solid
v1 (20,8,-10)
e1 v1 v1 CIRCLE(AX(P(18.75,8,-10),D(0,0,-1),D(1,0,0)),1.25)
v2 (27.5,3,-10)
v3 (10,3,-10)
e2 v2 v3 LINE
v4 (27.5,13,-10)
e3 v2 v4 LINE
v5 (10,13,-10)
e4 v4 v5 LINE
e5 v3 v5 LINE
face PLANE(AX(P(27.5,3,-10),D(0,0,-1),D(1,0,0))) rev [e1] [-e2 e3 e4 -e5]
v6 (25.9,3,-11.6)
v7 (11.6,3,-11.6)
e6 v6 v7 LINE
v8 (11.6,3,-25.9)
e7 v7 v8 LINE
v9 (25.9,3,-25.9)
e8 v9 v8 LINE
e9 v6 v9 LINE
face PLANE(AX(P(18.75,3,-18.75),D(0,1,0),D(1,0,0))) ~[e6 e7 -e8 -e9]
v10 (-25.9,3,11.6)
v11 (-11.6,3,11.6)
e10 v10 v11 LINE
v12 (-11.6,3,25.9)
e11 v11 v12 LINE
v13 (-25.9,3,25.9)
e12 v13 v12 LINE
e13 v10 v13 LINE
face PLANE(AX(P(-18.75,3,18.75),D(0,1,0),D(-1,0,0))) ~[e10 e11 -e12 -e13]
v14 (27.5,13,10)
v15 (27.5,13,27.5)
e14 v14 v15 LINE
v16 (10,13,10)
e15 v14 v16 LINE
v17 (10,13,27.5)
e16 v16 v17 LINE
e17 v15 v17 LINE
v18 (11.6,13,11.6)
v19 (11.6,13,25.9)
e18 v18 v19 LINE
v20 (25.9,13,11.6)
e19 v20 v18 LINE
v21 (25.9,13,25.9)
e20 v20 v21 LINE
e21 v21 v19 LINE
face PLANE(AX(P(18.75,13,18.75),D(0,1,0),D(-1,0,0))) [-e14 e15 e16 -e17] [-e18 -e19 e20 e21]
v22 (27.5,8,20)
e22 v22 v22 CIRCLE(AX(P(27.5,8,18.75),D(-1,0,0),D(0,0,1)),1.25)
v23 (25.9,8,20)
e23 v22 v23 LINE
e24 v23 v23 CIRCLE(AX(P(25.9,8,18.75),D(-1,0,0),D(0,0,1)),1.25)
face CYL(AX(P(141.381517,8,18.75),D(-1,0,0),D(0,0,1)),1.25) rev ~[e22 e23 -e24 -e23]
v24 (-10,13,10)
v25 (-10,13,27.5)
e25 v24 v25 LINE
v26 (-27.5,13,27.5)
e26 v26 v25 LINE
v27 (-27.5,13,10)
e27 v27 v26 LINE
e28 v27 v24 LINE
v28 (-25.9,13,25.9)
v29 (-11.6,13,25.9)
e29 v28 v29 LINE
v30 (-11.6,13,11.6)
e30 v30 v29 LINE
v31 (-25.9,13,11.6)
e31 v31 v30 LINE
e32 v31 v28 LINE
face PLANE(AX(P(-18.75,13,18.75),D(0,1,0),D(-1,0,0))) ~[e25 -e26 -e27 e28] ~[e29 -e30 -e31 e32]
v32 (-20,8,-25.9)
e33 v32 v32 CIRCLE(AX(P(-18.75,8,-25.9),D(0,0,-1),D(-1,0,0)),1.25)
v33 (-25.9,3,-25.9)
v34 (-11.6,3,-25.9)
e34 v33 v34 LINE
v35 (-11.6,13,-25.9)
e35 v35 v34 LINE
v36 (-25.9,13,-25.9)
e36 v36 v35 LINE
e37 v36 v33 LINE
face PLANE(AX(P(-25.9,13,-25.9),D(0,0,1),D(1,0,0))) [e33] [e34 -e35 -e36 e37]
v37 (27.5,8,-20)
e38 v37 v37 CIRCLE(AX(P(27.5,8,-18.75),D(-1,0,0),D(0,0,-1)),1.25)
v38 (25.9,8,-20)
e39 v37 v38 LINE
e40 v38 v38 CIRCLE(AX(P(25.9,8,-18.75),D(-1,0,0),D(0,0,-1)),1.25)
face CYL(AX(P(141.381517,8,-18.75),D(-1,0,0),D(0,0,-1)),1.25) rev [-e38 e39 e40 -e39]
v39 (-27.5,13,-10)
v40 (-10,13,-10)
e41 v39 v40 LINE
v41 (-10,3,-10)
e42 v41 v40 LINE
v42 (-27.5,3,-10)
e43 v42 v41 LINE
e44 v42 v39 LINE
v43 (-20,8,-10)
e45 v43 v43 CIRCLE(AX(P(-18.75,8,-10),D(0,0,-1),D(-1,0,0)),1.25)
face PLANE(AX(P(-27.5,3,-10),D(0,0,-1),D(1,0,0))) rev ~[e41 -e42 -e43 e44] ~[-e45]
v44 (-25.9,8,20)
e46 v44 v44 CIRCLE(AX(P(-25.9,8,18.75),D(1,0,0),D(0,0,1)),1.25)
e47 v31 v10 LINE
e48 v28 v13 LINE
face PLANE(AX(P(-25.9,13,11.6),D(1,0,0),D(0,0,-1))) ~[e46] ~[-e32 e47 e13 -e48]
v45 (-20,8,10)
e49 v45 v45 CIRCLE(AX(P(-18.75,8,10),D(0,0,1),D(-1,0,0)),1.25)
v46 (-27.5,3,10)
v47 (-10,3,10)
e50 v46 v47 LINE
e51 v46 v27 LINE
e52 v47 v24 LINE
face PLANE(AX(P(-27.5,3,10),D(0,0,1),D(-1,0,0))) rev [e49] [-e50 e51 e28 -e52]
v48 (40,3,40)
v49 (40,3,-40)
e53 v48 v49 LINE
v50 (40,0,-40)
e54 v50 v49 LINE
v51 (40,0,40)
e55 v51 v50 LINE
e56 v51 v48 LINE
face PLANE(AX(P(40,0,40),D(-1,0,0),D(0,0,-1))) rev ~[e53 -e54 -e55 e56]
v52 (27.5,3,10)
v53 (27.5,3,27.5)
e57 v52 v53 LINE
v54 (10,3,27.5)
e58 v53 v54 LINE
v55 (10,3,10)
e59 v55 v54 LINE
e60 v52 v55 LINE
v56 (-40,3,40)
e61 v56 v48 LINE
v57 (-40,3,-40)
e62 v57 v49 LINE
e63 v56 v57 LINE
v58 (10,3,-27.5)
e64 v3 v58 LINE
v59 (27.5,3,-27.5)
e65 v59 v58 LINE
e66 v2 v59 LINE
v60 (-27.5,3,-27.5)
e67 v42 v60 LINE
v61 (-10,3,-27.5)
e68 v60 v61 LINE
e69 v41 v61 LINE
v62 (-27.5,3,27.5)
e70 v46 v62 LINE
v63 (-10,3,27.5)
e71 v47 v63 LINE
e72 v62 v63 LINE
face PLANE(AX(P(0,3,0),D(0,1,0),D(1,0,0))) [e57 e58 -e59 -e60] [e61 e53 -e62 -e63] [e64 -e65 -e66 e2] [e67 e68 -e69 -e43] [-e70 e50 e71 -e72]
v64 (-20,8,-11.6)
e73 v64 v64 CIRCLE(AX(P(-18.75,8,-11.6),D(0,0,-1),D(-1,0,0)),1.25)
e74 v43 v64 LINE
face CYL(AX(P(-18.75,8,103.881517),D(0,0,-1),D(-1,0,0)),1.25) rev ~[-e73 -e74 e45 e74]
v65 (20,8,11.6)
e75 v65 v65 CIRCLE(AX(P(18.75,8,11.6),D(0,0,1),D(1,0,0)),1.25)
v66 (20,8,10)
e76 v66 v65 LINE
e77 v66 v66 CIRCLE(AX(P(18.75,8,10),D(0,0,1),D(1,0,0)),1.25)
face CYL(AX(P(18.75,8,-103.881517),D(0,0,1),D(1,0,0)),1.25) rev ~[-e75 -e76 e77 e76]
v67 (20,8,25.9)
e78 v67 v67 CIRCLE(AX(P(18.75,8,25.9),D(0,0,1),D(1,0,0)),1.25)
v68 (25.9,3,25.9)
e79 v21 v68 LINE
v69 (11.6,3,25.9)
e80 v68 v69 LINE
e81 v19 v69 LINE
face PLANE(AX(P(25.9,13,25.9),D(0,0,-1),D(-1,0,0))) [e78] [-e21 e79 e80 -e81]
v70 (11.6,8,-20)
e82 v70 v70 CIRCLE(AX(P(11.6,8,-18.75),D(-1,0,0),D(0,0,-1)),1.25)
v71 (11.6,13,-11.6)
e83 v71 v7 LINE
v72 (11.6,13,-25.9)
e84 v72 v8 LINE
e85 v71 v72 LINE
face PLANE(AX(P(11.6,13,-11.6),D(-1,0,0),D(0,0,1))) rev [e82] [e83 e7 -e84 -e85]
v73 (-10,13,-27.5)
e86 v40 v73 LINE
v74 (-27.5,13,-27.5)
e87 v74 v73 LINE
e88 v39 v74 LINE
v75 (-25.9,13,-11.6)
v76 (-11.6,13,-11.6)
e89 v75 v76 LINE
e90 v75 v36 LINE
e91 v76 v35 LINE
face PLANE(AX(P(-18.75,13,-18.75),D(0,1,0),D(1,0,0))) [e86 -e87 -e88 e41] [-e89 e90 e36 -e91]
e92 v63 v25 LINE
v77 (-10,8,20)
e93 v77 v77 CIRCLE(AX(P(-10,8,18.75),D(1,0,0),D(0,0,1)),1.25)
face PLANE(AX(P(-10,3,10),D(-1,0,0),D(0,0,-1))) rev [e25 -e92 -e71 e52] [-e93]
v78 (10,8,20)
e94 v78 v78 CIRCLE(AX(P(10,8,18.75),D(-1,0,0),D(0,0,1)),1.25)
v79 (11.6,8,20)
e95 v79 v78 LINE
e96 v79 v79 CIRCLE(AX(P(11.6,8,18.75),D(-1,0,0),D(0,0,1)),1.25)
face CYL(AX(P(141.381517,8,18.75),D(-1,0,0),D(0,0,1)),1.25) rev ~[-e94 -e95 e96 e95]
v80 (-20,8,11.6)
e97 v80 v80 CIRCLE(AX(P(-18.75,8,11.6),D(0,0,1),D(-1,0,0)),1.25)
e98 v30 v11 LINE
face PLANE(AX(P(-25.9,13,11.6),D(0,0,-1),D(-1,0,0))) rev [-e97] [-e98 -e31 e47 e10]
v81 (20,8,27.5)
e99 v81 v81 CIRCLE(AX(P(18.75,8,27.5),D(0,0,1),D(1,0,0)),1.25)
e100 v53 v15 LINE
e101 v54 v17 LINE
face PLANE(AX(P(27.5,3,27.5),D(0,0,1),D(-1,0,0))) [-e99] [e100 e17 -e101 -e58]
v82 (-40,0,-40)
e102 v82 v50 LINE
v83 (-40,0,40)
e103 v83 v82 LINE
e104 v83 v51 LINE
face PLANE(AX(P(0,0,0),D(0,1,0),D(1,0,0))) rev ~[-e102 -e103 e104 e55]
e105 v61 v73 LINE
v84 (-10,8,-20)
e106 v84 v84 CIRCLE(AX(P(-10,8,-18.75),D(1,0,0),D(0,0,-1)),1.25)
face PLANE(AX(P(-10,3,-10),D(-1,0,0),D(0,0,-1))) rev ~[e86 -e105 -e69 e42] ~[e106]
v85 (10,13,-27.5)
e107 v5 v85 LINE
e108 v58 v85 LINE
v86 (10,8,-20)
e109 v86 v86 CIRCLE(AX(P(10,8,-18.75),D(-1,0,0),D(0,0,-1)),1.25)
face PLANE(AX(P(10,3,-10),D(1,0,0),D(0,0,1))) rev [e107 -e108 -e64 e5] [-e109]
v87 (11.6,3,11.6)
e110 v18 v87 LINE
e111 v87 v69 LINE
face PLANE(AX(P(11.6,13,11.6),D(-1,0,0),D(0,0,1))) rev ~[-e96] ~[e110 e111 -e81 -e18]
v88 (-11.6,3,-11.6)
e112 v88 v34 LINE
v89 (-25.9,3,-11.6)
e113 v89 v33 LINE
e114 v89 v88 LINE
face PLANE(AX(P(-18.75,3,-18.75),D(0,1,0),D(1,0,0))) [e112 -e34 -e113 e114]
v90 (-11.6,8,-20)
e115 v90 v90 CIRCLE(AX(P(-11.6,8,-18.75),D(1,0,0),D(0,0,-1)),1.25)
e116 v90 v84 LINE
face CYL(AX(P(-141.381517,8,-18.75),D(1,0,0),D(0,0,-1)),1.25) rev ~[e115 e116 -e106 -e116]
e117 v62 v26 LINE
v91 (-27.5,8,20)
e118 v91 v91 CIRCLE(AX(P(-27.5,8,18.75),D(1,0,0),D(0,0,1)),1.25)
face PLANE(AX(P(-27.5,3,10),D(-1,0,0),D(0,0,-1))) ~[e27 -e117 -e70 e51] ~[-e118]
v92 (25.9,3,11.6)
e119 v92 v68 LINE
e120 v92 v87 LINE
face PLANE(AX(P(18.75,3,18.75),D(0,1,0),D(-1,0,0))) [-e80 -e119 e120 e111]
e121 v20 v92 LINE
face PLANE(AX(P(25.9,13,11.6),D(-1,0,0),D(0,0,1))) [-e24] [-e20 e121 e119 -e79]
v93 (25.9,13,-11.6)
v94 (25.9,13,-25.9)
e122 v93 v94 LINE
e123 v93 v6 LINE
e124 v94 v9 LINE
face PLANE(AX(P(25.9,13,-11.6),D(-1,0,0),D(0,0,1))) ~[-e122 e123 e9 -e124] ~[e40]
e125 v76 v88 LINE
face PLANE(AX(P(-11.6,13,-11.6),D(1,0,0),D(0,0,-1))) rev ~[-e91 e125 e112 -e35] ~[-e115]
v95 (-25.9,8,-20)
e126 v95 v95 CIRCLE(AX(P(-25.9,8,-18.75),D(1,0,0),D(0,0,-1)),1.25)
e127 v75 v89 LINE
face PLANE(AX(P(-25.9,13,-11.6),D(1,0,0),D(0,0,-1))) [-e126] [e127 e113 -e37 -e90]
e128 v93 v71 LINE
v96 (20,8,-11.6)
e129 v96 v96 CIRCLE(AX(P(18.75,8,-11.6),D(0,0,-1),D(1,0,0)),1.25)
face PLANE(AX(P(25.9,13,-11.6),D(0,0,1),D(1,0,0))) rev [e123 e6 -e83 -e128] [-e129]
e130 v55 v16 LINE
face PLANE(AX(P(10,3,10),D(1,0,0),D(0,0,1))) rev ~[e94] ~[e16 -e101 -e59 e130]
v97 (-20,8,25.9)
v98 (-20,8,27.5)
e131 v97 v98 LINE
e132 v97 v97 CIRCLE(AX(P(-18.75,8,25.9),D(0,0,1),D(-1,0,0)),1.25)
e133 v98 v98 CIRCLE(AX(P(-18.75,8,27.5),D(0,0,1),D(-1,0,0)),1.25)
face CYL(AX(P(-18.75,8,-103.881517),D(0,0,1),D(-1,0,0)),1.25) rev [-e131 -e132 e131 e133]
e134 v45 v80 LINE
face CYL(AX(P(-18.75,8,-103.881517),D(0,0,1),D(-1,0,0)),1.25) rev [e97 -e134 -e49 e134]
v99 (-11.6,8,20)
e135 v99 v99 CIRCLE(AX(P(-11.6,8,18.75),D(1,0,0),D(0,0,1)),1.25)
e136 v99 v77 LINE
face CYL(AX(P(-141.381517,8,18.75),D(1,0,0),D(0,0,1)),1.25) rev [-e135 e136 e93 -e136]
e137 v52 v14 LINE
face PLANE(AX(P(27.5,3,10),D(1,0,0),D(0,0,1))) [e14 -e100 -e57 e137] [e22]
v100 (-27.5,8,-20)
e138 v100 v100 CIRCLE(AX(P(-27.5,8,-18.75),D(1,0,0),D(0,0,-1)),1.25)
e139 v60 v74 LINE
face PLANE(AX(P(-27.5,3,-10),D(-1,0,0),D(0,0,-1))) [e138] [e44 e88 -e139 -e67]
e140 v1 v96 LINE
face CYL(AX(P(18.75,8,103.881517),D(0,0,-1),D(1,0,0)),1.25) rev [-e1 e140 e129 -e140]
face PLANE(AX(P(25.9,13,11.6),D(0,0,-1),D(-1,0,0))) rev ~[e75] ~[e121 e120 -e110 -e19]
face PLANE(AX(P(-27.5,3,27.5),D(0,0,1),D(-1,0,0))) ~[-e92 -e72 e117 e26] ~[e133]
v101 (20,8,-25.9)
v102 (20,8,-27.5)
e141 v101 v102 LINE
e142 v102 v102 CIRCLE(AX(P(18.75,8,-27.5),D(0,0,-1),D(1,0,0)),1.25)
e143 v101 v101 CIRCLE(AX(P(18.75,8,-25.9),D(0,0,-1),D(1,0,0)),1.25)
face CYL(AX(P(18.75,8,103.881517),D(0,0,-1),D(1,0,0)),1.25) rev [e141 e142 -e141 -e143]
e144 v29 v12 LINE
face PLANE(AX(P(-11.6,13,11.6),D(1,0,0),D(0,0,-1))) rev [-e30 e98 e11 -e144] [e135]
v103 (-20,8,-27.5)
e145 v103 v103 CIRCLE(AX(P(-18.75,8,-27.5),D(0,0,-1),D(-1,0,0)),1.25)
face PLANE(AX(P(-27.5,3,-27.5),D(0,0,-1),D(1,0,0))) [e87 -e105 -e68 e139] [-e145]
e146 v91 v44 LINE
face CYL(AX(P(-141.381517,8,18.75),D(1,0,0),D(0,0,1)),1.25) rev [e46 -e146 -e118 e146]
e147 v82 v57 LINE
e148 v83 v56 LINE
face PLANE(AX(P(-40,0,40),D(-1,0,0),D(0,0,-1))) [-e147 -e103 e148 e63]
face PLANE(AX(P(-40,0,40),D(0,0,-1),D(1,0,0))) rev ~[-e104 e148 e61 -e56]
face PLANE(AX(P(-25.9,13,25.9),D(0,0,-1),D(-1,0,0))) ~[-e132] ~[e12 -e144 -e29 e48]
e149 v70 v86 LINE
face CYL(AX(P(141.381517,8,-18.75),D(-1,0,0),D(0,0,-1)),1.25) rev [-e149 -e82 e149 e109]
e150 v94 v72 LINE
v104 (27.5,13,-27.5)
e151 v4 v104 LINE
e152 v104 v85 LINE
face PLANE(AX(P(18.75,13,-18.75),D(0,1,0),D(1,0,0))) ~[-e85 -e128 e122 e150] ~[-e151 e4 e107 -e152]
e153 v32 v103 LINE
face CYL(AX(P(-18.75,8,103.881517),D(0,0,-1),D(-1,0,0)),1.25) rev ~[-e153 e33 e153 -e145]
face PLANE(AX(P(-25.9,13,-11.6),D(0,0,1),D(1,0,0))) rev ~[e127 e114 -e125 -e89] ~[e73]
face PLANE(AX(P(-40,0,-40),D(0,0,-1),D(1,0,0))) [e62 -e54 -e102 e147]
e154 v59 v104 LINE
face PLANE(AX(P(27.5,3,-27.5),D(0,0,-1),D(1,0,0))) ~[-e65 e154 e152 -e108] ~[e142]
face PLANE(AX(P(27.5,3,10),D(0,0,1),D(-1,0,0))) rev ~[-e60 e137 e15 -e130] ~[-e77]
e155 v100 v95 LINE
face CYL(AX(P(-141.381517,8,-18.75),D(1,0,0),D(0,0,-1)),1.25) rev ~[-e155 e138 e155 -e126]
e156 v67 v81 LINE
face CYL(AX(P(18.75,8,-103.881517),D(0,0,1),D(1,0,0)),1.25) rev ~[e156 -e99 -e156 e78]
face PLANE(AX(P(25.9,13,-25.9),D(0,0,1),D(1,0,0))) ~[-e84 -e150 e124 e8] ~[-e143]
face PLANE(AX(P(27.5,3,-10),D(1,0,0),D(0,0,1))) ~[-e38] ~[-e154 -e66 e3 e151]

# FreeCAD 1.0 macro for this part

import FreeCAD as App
import Part
import Sketcher
from FreeCAD import Vector

doc = App.newDocument("Part")
body = doc.addObject("PartDesign::Body", "Body")

# Sketch on XZ plane
sketch1 = body.newObject("Sketcher::SketchObject", "Sketch")
sketch1.AttachmentSupport = (doc.getObject("XZ_Plane"), [""])
sketch1.MapMode = "FlatFace"
sketch1.addGeometry([
    Part.LineSegment(Vector(-40, -40, 0), Vector(-40, 40, 0)),
    Part.LineSegment(Vector(-40, 40, 0), Vector(40, 40, 0)),
    Part.LineSegment(Vector(40, 40, 0), Vector(40, -40, 0)),
    Part.LineSegment(Vector(40, -40, 0), Vector(-40, -40, 0)),
], False)
sketch1.addConstraint([
    Sketcher.Constraint("Coincident", 0, 2, 1, 1),
    Sketcher.Constraint("Coincident", 1, 2, 2, 1),
    Sketcher.Constraint("Coincident", 2, 2, 3, 1),
    Sketcher.Constraint("Coincident", 3, 2, 0, 1),
    Sketcher.Constraint("Vertical", 0),
    Sketcher.Constraint("Horizontal", 1),
    Sketcher.Constraint("Vertical", 2),
    Sketcher.Constraint("Horizontal", 3),
    Sketcher.Constraint("Symmetric", 0, 2, 2, 2, -1, 1),
    Sketcher.Constraint("Equal", 3, 0),
    Sketcher.Constraint("DistanceX", 1, 1, 1, 2, 80.0),
])
pad1 = body.newObject("PartDesign::Pad", "Pad")
pad1.Profile = sketch1
pad1.Length = 3
pad1.Reversed = True

# Sketch on XZ plane
sketch2 = body.newObject("Sketcher::SketchObject", "Sketch001")
sketch2.AttachmentSupport = (doc.getObject("XZ_Plane"), [""])
sketch2.MapMode = "FlatFace"
sketch2.AttachmentOffset = App.Placement(Vector(0, 0, -3), App.Rotation())
sketch2.addGeometry([
    Part.LineSegment(Vector(-28, -28, 0), Vector(-28, -10, 0)),
    Part.LineSegment(Vector(-28, -10, 0), Vector(-10, -10, 0)),
    Part.LineSegment(Vector(-10, -10, 0), Vector(-10, -28, 0)),
    Part.LineSegment(Vector(-10, -28, 0), Vector(-28, -28, 0)),
], False)
sketch2.addConstraint([
    Sketcher.Constraint("Coincident", 0, 2, 1, 1),
    Sketcher.Constraint("Coincident", 1, 2, 2, 1),
    Sketcher.Constraint("Coincident", 2, 2, 3, 1),
    Sketcher.Constraint("Coincident", 3, 2, 0, 1),
    Sketcher.Constraint("Vertical", 0),
    Sketcher.Constraint("Horizontal", 1),
    Sketcher.Constraint("Vertical", 2),
    Sketcher.Constraint("Horizontal", 3),
    Sketcher.Constraint("Equal", 3, 0),
    Sketcher.Constraint("DistanceX", 1, 1, 1, 2, 17.5),
    Sketcher.Constraint("DistanceY", 0, 2, -1, 1, 10.0),
    Sketcher.Constraint("DistanceX", 1, 2, -1, 1, 10.0),
])
pad2 = body.newObject("PartDesign::Pad", "Pad001")
pad2.Profile = sketch2
pad2.Length = 10
pad2.Reversed = True

# Sketch on XZ plane
sketch3 = body.newObject("Sketcher::SketchObject", "Sketch002")
sketch3.AttachmentSupport = (doc.getObject("XZ_Plane"), [""])
sketch3.MapMode = "FlatFace"
sketch3.AttachmentOffset = App.Placement(Vector(0, 0, -13), App.Rotation())
sketch3.addGeometry([
    Part.LineSegment(Vector(-26, -26, 0), Vector(-26, -12, 0)),
    Part.LineSegment(Vector(-26, -12, 0), Vector(-12, -12, 0)),
    Part.LineSegment(Vector(-12, -12, 0), Vector(-12, -26, 0)),
    Part.LineSegment(Vector(-12, -26, 0), Vector(-26, -26, 0)),
], False)
sketch3.addConstraint([
    Sketcher.Constraint("Coincident", 0, 2, 1, 1),
    Sketcher.Constraint("Coincident", 1, 2, 2, 1),
    Sketcher.Constraint("Coincident", 2, 2, 3, 1),
    Sketcher.Constraint("Coincident", 3, 2, 0, 1),
    Sketcher.Constraint("Vertical", 0),
    Sketcher.Constraint("Horizontal", 1),
    Sketcher.Constraint("Vertical", 2),
    Sketcher.Constraint("Horizontal", 3),
    Sketcher.Constraint("Equal", 3, 0),
    Sketcher.Constraint("DistanceX", 1, 1, 1, 2, 14.3),
    Sketcher.Constraint("DistanceX", 0, 2, -1, 1, 25.9),
    Sketcher.Constraint("DistanceY", 0, 2, -1, 1, 11.6),
])
pocket1 = body.newObject("PartDesign::Pocket", "Pocket")
pocket1.Profile = sketch3
pocket1.Length = 10
pocket1.Reversed = True

# Sketch on XY plane
sketch4 = body.newObject("Sketcher::SketchObject", "Sketch003")
sketch4.AttachmentSupport = (doc.getObject("XY_Plane"), [""])
sketch4.MapMode = "FlatFace"
sketch4.AttachmentOffset = App.Placement(Vector(0, 0, -10), App.Rotation())
sketch4.addGeometry(Part.Circle(Vector(-18.8, 8, 0), Vector(0, 0, 1), 1.2), False)
sketch4.addConstraint([
    Sketcher.Constraint("Diameter", 0, 2.5),
    Sketcher.Constraint("DistanceY", -1, 1, 0, 3, 8.0),
    Sketcher.Constraint("DistanceX", 0, 3, -1, 1, 18.75),
])
doc.recompute()
hole = body.newObject("PartDesign::Hole", "Hole")
hole.Profile = sketch4
hole.ThreadType = "None"
hole.Diameter = 2.5
hole.DepthType = "ThroughAll"

# Sketch on YZ plane
sketch5 = body.newObject("Sketcher::SketchObject", "Sketch004")
sketch5.AttachmentSupport = (doc.getObject("YZ_Plane"), [""])
sketch5.MapMode = "FlatFace"
sketch5.AttachmentOffset = App.Placement(Vector(0, 0, -27.5), App.Rotation())
sketch5.addGeometry(Part.Circle(Vector(8, -18.8, 0), Vector(0, 0, 1), 1.2), False)
sketch5.addConstraint([
    Sketcher.Constraint("Diameter", 0, 2.5),
    Sketcher.Constraint("DistanceX", -1, 1, 0, 3, 8.0),
    Sketcher.Constraint("DistanceY", 0, 3, -1, 1, 18.75),
])
doc.recompute()
hole2 = body.newObject("PartDesign::Hole", "Hole001")
hole2.Profile = sketch5
hole2.ThreadType = "None"
hole2.Diameter = 2.5
hole2.DepthType = "ThroughAll"
hole2.Reversed = True
doc.recompute()

mirrored = body.newObject("PartDesign::Mirrored", "Mirrored")
mirrored.Originals = [pad2, pocket1, hole, hole2]
mirrored.MirrorPlane = (doc.getObject("YZ_Plane"), [""])
body.Tip = mirrored
doc.recompute()

mirrored2 = body.newObject("PartDesign::Mirrored", "Mirrored001")
mirrored2.Originals = [pad2, pocket1, hole, hole2]
mirrored2.MirrorPlane = (doc.getObject("XY_Plane"), [""])
body.Tip = mirrored2

# Sketch on XZ plane
sketch6 = body.newObject("Sketcher::SketchObject", "Sketch005")
sketch6.AttachmentSupport = (doc.getObject("XZ_Plane"), [""])
sketch6.MapMode = "FlatFace"
sketch6.AttachmentOffset = App.Placement(Vector(0, 0, -3), App.Rotation())
sketch6.addGeometry([
    Part.LineSegment(Vector(28, 28, 0), Vector(28, 10, 0)),
    Part.LineSegment(Vector(28, 10, 0), Vector(10, 10, 0)),
    Part.LineSegment(Vector(10, 10, 0), Vector(10, 28, 0)),
    Part.LineSegment(Vector(10, 28, 0), Vector(28, 28, 0)),
], False)
sketch6.addConstraint([
    Sketcher.Constraint("Coincident", 0, 2, 1, 1),
    Sketcher.Constraint("Coincident", 1, 2, 2, 1),
    Sketcher.Constraint("Coincident", 2, 2, 3, 1),
    Sketcher.Constraint("Coincident", 3, 2, 0, 1),
    Sketcher.Constraint("Vertical", 0),
    Sketcher.Constraint("Horizontal", 1),
    Sketcher.Constraint("Vertical", 2),
    Sketcher.Constraint("Horizontal", 3),
    Sketcher.Constraint("Equal", 3, 0),
    Sketcher.Constraint("DistanceX", 1, 2, 1, 1, 17.5),
    Sketcher.Constraint("DistanceY", -1, 1, 0, 2, 10.0),
    Sketcher.Constraint("DistanceX", -1, 1, 1, 2, 10.0),
])
pad3 = body.newObject("PartDesign::Pad", "Pad002")
pad3.Profile = sketch6
pad3.Length = 10
pad3.Reversed = True

# Sketch on XZ plane
sketch7 = body.newObject("Sketcher::SketchObject", "Sketch006")
sketch7.AttachmentSupport = (doc.getObject("XZ_Plane"), [""])
sketch7.MapMode = "FlatFace"
sketch7.AttachmentOffset = App.Placement(Vector(0, 0, -13), App.Rotation())
sketch7.addGeometry([
    Part.LineSegment(Vector(26, 26, 0), Vector(26, 12, 0)),
    Part.LineSegment(Vector(26, 12, 0), Vector(12, 12, 0)),
    Part.LineSegment(Vector(12, 12, 0), Vector(12, 26, 0)),
    Part.LineSegment(Vector(12, 26, 0), Vector(26, 26, 0)),
], False)
sketch7.addConstraint([
    Sketcher.Constraint("Coincident", 0, 2, 1, 1),
    Sketcher.Constraint("Coincident", 1, 2, 2, 1),
    Sketcher.Constraint("Coincident", 2, 2, 3, 1),
    Sketcher.Constraint("Coincident", 3, 2, 0, 1),
    Sketcher.Constraint("Vertical", 0),
    Sketcher.Constraint("Horizontal", 1),
    Sketcher.Constraint("Vertical", 2),
    Sketcher.Constraint("Horizontal", 3),
    Sketcher.Constraint("Equal", 3, 0),
    Sketcher.Constraint("DistanceX", 1, 2, 1, 1, 14.3),
    Sketcher.Constraint("DistanceX", -1, 1, 0, 2, 25.9),
    Sketcher.Constraint("DistanceY", -1, 1, 0, 2, 11.6),
])
pocket2 = body.newObject("PartDesign::Pocket", "Pocket001")
pocket2.Profile = sketch7
pocket2.Length = 10
pocket2.Reversed = True

# Sketch on XY plane
sketch8 = body.newObject("Sketcher::SketchObject", "Sketch007")
sketch8.AttachmentSupport = (doc.getObject("XY_Plane"), [""])
sketch8.MapMode = "FlatFace"
sketch8.AttachmentOffset = App.Placement(Vector(0, 0, 10), App.Rotation())
sketch8.addGeometry(Part.Circle(Vector(18.8, 8, 0), Vector(0, 0, 1), 1.2), False)
sketch8.addConstraint([
    Sketcher.Constraint("Diameter", 0, 2.5),
    Sketcher.Constraint("DistanceY", -1, 1, 0, 3, 8.0),
    Sketcher.Constraint("DistanceX", -1, 1, 0, 3, 18.75),
])
doc.recompute()
hole3 = body.newObject("PartDesign::Hole", "Hole002")
hole3.Profile = sketch8
hole3.ThreadType = "None"
hole3.Diameter = 2.5
hole3.DepthType = "ThroughAll"
hole3.Reversed = True

# Sketch on YZ plane
sketch9 = body.newObject("Sketcher::SketchObject", "Sketch008")
sketch9.AttachmentSupport = (doc.getObject("YZ_Plane"), [""])
sketch9.MapMode = "FlatFace"
sketch9.AttachmentOffset = App.Placement(Vector(0, 0, 27.5), App.Rotation())
sketch9.addGeometry(Part.Circle(Vector(8, 18.8, 0), Vector(0, 0, 1), 1.2), False)
sketch9.addConstraint([
    Sketcher.Constraint("Diameter", 0, 2.5),
    Sketcher.Constraint("DistanceX", -1, 1, 0, 3, 8.0),
    Sketcher.Constraint("DistanceY", -1, 1, 0, 3, 18.75),
])
doc.recompute()
hole4 = body.newObject("PartDesign::Hole", "Hole003")
hole4.Profile = sketch9
hole4.ThreadType = "None"
hole4.Diameter = 2.5
hole4.DepthType = "ThroughAll"

doc.recompute()
